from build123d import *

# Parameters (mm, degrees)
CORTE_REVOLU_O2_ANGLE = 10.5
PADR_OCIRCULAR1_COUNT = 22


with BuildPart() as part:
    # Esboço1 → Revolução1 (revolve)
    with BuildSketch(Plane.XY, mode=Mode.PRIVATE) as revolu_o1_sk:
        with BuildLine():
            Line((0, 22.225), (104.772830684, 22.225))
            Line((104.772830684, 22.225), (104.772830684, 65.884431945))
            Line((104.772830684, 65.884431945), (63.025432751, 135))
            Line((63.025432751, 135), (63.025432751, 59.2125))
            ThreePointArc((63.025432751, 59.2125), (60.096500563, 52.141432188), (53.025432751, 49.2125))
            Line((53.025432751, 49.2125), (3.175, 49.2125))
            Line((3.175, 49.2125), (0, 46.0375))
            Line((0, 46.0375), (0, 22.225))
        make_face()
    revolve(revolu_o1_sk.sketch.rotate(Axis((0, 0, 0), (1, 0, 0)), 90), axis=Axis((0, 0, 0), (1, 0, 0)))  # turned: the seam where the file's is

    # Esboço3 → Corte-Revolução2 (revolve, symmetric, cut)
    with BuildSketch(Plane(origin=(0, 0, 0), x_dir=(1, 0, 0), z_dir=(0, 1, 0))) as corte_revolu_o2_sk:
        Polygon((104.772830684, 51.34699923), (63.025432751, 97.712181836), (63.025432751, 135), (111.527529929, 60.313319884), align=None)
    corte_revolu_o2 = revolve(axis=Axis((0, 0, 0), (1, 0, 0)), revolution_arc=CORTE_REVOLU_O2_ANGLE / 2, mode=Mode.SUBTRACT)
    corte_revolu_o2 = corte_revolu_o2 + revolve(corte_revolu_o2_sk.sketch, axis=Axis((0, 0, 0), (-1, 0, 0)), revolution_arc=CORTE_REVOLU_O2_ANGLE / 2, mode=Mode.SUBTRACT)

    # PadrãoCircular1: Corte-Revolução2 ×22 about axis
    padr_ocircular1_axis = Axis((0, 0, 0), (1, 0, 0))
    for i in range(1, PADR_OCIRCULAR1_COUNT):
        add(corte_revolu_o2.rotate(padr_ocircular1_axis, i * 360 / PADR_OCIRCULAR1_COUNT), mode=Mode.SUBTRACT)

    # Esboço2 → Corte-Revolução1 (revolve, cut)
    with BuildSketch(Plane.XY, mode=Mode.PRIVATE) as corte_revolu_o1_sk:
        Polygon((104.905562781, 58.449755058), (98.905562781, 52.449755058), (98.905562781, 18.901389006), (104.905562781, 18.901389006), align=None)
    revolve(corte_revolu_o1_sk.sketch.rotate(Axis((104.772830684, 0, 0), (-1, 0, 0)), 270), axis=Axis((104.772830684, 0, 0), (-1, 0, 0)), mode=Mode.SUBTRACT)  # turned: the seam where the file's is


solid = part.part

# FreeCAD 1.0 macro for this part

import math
import FreeCAD as App
import Part
import Sketcher
Q = App.Units.Quantity


def add_polygon(sketch, points):
    """Adds a closed chain of lines whose ends are joined by coincident constraints."""
    first, n = sketch.GeometryCount, len(points)
    for a, b in zip(points, points[1:] + points[:1]):
        sketch.addGeometry(Part.LineSegment(App.Vector(*a, 0), App.Vector(*b, 0)), False)
    for i in range(n):
        sketch.addConstraint(Sketcher.Constraint("Coincident", first + i, 2, first + (i + 1) % n, 1))

doc = App.newDocument("Part")
body = doc.addObject("PartDesign::Body", "Body")

# Sketch on XY plane
sketch1 = doc.addObject("Sketcher::SketchObject", "Sketch")
body.addObject(sketch1)
sketch1.AttachmentSupport = (doc.XY_Plane, [""])
sketch1.MapMode = "FlatFace"
sketch1.addGeometry([
    Part.LineSegment(App.Vector(0, 22.225, 0), App.Vector(104.772831, 22.225, 0)),  # 0
    Part.LineSegment(App.Vector(104.772831, 22.225, 0), App.Vector(104.772831, 65.884432, 0)),  # 1
    Part.LineSegment(App.Vector(104.772831, 65.884432, 0), App.Vector(63.025433, 135, 0)),  # 2
    Part.LineSegment(App.Vector(63.025433, 135, 0), App.Vector(63.025433, 59.2125, 0)),  # 3
    Part.ArcOfCircle(Part.Circle(App.Vector(53.025433, 59.2125, 0), App.Vector(0, 0, 1), 10), math.radians(-90), math.radians(0)),  # 4
    Part.LineSegment(App.Vector(53.025433, 49.2125, 0), App.Vector(3.175, 49.2125, 0)),  # 5
    Part.LineSegment(App.Vector(3.175, 49.2125, 0), App.Vector(0, 46.0375, 0)),  # 6
    Part.LineSegment(App.Vector(0, 46.0375, 0), App.Vector(0, 22.225, 0)),  # 7
], False)
sketch1.addConstraint([
    Sketcher.Constraint("Coincident", 0, 2, 1, 1),
    Sketcher.Constraint("Coincident", 1, 2, 2, 1),
    Sketcher.Constraint("Coincident", 2, 2, 3, 1),
    Sketcher.Constraint("Tangent", 3, 2, 4, 2),
    Sketcher.Constraint("Tangent", 4, 1, 5, 1),
    Sketcher.Constraint("Coincident", 5, 2, 6, 1),
    Sketcher.Constraint("Coincident", 6, 2, 7, 1),
    Sketcher.Constraint("Coincident", 7, 2, 0, 1),
    Sketcher.Constraint("Horizontal", 0),
    Sketcher.Constraint("Vertical", 1),
    Sketcher.Constraint("Vertical", 3),
    Sketcher.Constraint("Horizontal", 5),
    Sketcher.Constraint("Vertical", 7),
    Sketcher.Constraint("PointOnObject", 6, 2, -2),
    Sketcher.Constraint("Radius", 4, 10.0),
    Sketcher.Constraint("Angle", 6, Q("-135 deg")),
    Sketcher.Constraint("DistanceY", -1, 1, 2, 2, 135.0),
    Sketcher.Constraint("DistanceY", 3, 2, 3, 1, 75.7875),
    Sketcher.Constraint("DistanceY", 7, 2, 7, 1, 23.8125),
    Sketcher.Constraint("DistanceY", -1, 1, 0, 2, 22.225),
    Sketcher.Constraint("DistanceX", 0, 1, 0, 2, 104.772831),
    Sketcher.Constraint("DistanceY", 1, 1, 1, 2, 43.659432),
    Sketcher.Constraint("Distance", 2, 80.745322),
])
revolution = doc.addObject("PartDesign::Revolution", "Revolution")
body.addObject(revolution)
revolution.Profile = sketch1
revolution.ReferenceAxis = (sketch1, ["H_Axis"])
revolution.Angle = 360

# Sketch on XZ plane
sketch2 = doc.addObject("Sketcher::SketchObject", "Sketch001")
body.addObject(sketch2)
sketch2.AttachmentSupport = (doc.XZ_Plane, [""])
sketch2.MapMode = "FlatFace"
add_polygon(sketch2, [(63.025433, -97.712182), (104.772831, -51.346999), (111.52753, -60.31332), (63.025433, -135)])  # lines 0-3
sketch2.addConstraint([
    Sketcher.Constraint("Vertical", 3),
    Sketcher.Constraint("Angle", 0, Q("48 deg")),
    Sketcher.Constraint("Angle", 2, Q("-123 deg")),
    Sketcher.Constraint("DistanceY", 2, 2, -1, 1, 135.0),
    Sketcher.Constraint("DistanceY", 0, 2, -1, 1, 51.346999),
    Sketcher.Constraint("Distance", 1, 11.225902),
    Sketcher.Constraint("DistanceY", 3, 1, 3, 2, 37.287818),
    Sketcher.Constraint("DistanceX", -1, 1, 0, 2, 104.772831),
])
groove = doc.addObject("PartDesign::Groove", "Groove")
body.addObject(groove)
groove.Profile = sketch2
groove.ReferenceAxis = (sketch2, ["H_Axis"])
groove.Angle = 5.25

# Sketch on XZ plane
sketch3 = doc.addObject("Sketcher::SketchObject", "Sketch002")
body.addObject(sketch3)
sketch3.AttachmentSupport = (doc.XZ_Plane, [""])
sketch3.MapMode = "FlatFace"
add_polygon(sketch3, [(63.025433, -97.712182), (104.772831, -51.346999), (111.52753, -60.31332), (63.025433, -135)])  # lines 0-3
sketch3.addConstraint([
    Sketcher.Constraint("Vertical", 3),
    Sketcher.Constraint("Angle", 0, Q("48 deg")),
    Sketcher.Constraint("Angle", 2, Q("-123 deg")),
    Sketcher.Constraint("DistanceY", 2, 2, -1, 1, 135.0),
    Sketcher.Constraint("DistanceY", 0, 2, -1, 1, 51.346999),
    Sketcher.Constraint("Distance", 1, 11.225902),
    Sketcher.Constraint("DistanceY", 3, 1, 3, 2, 37.287818),
    Sketcher.Constraint("DistanceX", -1, 1, 0, 2, 104.772831),
])
groove2 = doc.addObject("PartDesign::Groove", "Groove001")
body.addObject(groove2)
groove2.Profile = sketch3
groove2.ReferenceAxis = (sketch3, ["H_Axis"])
groove2.Angle = 5.25
groove2.Reversed = True
doc.recompute()

polarpattern = doc.addObject("PartDesign::PolarPattern", "PolarPattern")
body.addObject(polarpattern)
polarpattern.Originals = [groove, groove2]
polarpattern.Axis = (doc.X_Axis, [""])
polarpattern.Angle = 360
polarpattern.Occurrences = 22
body.Tip = polarpattern

# Sketch on XY plane
sketch4 = doc.addObject("Sketcher::SketchObject", "Sketch003")
body.addObject(sketch4)
sketch4.AttachmentSupport = (doc.XY_Plane, [""])
sketch4.MapMode = "FlatFace"
add_polygon(sketch4, [(104.905563, 58.449755), (98.905563, 52.449755), (98.905563, 18.901389), (104.905563, 18.901389)])  # lines 0-3
sketch4.addConstraint([
    Sketcher.Constraint("Vertical", 1),
    Sketcher.Constraint("Horizontal", 2),
    Sketcher.Constraint("Vertical", 3),
    Sketcher.Constraint("DistanceX", 2, 1, 2, 2, 6.0),
    Sketcher.Constraint("Angle", 0, Q("-135 deg")),
    Sketcher.Constraint("DistanceY", 1, 2, 1, 1, 33.548366),
    Sketcher.Constraint("DistanceY", -1, 1, 1, 2, 18.901389),
    Sketcher.Constraint("DistanceX", -1, 1, 0, 2, 98.905563),
])
groove3 = doc.addObject("PartDesign::Groove", "Groove002")
body.addObject(groove3)
groove3.Profile = sketch4
groove3.ReferenceAxis = (sketch4, ["H_Axis"])
groove3.Angle = 360

doc.recompute()
